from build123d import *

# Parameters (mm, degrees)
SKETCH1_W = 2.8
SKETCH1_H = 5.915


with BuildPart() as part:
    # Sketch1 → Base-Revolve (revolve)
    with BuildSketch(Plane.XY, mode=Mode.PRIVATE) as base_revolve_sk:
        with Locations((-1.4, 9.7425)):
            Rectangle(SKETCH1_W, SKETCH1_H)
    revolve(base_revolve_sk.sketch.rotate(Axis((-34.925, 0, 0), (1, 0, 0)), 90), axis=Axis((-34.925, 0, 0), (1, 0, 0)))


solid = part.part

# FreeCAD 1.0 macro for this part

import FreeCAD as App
import Part
import Sketcher

V = App.Vector


def add_polygon(sketch, points):
    """Adds a closed chain of lines whose ends are joined by coincident constraints."""
    first, n = sketch.GeometryCount, len(points)
    for a, b in zip(points, points[1:] + points[:1]):
        sketch.addGeometry(Part.LineSegment(App.Vector(*a, 0), App.Vector(*b, 0)), False)
    for i in range(n):
        sketch.addConstraint(Sketcher.Constraint("Coincident", first + i, 2, first + (i + 1) % n, 1))

doc = App.newDocument("Part")
body = doc.addObject("PartDesign::Body", "Body")

# Sketch on XY plane
sketch1 = body.newObject("Sketcher::SketchObject", "Sketch")
sketch1.AttachmentSupport = (doc.getObject("XY_Plane"), [""])
sketch1.MapMode = "FlatFace"
add_polygon(sketch1, [(-2.8, 12.7), (-2.8, 6.8), (0, 6.8), (0, 12.7)])  # lines 0-3
sketch1.addConstraint([
    Sketcher.Constraint("Vertical", 0),
    Sketcher.Constraint("Horizontal", 1),
    Sketcher.Constraint("Vertical", 2),
    Sketcher.Constraint("Horizontal", 3),
    Sketcher.Constraint("PointOnObject", 1, 2, -2),
    Sketcher.Constraint("DistanceX", 1, 1, 1, 2, 2.8),
    Sketcher.Constraint("DistanceY", -1, 1, 2, 2, 12.7),
    Sketcher.Constraint("DistanceY", 0, 2, 0, 1, 5.915),
])
revolution = body.newObject("PartDesign::Revolution", "Revolution")
revolution.Profile = sketch1
revolution.ReferenceAxis = (sketch1, ["H_Axis"])
revolution.Angle = 360

doc.recompute()
